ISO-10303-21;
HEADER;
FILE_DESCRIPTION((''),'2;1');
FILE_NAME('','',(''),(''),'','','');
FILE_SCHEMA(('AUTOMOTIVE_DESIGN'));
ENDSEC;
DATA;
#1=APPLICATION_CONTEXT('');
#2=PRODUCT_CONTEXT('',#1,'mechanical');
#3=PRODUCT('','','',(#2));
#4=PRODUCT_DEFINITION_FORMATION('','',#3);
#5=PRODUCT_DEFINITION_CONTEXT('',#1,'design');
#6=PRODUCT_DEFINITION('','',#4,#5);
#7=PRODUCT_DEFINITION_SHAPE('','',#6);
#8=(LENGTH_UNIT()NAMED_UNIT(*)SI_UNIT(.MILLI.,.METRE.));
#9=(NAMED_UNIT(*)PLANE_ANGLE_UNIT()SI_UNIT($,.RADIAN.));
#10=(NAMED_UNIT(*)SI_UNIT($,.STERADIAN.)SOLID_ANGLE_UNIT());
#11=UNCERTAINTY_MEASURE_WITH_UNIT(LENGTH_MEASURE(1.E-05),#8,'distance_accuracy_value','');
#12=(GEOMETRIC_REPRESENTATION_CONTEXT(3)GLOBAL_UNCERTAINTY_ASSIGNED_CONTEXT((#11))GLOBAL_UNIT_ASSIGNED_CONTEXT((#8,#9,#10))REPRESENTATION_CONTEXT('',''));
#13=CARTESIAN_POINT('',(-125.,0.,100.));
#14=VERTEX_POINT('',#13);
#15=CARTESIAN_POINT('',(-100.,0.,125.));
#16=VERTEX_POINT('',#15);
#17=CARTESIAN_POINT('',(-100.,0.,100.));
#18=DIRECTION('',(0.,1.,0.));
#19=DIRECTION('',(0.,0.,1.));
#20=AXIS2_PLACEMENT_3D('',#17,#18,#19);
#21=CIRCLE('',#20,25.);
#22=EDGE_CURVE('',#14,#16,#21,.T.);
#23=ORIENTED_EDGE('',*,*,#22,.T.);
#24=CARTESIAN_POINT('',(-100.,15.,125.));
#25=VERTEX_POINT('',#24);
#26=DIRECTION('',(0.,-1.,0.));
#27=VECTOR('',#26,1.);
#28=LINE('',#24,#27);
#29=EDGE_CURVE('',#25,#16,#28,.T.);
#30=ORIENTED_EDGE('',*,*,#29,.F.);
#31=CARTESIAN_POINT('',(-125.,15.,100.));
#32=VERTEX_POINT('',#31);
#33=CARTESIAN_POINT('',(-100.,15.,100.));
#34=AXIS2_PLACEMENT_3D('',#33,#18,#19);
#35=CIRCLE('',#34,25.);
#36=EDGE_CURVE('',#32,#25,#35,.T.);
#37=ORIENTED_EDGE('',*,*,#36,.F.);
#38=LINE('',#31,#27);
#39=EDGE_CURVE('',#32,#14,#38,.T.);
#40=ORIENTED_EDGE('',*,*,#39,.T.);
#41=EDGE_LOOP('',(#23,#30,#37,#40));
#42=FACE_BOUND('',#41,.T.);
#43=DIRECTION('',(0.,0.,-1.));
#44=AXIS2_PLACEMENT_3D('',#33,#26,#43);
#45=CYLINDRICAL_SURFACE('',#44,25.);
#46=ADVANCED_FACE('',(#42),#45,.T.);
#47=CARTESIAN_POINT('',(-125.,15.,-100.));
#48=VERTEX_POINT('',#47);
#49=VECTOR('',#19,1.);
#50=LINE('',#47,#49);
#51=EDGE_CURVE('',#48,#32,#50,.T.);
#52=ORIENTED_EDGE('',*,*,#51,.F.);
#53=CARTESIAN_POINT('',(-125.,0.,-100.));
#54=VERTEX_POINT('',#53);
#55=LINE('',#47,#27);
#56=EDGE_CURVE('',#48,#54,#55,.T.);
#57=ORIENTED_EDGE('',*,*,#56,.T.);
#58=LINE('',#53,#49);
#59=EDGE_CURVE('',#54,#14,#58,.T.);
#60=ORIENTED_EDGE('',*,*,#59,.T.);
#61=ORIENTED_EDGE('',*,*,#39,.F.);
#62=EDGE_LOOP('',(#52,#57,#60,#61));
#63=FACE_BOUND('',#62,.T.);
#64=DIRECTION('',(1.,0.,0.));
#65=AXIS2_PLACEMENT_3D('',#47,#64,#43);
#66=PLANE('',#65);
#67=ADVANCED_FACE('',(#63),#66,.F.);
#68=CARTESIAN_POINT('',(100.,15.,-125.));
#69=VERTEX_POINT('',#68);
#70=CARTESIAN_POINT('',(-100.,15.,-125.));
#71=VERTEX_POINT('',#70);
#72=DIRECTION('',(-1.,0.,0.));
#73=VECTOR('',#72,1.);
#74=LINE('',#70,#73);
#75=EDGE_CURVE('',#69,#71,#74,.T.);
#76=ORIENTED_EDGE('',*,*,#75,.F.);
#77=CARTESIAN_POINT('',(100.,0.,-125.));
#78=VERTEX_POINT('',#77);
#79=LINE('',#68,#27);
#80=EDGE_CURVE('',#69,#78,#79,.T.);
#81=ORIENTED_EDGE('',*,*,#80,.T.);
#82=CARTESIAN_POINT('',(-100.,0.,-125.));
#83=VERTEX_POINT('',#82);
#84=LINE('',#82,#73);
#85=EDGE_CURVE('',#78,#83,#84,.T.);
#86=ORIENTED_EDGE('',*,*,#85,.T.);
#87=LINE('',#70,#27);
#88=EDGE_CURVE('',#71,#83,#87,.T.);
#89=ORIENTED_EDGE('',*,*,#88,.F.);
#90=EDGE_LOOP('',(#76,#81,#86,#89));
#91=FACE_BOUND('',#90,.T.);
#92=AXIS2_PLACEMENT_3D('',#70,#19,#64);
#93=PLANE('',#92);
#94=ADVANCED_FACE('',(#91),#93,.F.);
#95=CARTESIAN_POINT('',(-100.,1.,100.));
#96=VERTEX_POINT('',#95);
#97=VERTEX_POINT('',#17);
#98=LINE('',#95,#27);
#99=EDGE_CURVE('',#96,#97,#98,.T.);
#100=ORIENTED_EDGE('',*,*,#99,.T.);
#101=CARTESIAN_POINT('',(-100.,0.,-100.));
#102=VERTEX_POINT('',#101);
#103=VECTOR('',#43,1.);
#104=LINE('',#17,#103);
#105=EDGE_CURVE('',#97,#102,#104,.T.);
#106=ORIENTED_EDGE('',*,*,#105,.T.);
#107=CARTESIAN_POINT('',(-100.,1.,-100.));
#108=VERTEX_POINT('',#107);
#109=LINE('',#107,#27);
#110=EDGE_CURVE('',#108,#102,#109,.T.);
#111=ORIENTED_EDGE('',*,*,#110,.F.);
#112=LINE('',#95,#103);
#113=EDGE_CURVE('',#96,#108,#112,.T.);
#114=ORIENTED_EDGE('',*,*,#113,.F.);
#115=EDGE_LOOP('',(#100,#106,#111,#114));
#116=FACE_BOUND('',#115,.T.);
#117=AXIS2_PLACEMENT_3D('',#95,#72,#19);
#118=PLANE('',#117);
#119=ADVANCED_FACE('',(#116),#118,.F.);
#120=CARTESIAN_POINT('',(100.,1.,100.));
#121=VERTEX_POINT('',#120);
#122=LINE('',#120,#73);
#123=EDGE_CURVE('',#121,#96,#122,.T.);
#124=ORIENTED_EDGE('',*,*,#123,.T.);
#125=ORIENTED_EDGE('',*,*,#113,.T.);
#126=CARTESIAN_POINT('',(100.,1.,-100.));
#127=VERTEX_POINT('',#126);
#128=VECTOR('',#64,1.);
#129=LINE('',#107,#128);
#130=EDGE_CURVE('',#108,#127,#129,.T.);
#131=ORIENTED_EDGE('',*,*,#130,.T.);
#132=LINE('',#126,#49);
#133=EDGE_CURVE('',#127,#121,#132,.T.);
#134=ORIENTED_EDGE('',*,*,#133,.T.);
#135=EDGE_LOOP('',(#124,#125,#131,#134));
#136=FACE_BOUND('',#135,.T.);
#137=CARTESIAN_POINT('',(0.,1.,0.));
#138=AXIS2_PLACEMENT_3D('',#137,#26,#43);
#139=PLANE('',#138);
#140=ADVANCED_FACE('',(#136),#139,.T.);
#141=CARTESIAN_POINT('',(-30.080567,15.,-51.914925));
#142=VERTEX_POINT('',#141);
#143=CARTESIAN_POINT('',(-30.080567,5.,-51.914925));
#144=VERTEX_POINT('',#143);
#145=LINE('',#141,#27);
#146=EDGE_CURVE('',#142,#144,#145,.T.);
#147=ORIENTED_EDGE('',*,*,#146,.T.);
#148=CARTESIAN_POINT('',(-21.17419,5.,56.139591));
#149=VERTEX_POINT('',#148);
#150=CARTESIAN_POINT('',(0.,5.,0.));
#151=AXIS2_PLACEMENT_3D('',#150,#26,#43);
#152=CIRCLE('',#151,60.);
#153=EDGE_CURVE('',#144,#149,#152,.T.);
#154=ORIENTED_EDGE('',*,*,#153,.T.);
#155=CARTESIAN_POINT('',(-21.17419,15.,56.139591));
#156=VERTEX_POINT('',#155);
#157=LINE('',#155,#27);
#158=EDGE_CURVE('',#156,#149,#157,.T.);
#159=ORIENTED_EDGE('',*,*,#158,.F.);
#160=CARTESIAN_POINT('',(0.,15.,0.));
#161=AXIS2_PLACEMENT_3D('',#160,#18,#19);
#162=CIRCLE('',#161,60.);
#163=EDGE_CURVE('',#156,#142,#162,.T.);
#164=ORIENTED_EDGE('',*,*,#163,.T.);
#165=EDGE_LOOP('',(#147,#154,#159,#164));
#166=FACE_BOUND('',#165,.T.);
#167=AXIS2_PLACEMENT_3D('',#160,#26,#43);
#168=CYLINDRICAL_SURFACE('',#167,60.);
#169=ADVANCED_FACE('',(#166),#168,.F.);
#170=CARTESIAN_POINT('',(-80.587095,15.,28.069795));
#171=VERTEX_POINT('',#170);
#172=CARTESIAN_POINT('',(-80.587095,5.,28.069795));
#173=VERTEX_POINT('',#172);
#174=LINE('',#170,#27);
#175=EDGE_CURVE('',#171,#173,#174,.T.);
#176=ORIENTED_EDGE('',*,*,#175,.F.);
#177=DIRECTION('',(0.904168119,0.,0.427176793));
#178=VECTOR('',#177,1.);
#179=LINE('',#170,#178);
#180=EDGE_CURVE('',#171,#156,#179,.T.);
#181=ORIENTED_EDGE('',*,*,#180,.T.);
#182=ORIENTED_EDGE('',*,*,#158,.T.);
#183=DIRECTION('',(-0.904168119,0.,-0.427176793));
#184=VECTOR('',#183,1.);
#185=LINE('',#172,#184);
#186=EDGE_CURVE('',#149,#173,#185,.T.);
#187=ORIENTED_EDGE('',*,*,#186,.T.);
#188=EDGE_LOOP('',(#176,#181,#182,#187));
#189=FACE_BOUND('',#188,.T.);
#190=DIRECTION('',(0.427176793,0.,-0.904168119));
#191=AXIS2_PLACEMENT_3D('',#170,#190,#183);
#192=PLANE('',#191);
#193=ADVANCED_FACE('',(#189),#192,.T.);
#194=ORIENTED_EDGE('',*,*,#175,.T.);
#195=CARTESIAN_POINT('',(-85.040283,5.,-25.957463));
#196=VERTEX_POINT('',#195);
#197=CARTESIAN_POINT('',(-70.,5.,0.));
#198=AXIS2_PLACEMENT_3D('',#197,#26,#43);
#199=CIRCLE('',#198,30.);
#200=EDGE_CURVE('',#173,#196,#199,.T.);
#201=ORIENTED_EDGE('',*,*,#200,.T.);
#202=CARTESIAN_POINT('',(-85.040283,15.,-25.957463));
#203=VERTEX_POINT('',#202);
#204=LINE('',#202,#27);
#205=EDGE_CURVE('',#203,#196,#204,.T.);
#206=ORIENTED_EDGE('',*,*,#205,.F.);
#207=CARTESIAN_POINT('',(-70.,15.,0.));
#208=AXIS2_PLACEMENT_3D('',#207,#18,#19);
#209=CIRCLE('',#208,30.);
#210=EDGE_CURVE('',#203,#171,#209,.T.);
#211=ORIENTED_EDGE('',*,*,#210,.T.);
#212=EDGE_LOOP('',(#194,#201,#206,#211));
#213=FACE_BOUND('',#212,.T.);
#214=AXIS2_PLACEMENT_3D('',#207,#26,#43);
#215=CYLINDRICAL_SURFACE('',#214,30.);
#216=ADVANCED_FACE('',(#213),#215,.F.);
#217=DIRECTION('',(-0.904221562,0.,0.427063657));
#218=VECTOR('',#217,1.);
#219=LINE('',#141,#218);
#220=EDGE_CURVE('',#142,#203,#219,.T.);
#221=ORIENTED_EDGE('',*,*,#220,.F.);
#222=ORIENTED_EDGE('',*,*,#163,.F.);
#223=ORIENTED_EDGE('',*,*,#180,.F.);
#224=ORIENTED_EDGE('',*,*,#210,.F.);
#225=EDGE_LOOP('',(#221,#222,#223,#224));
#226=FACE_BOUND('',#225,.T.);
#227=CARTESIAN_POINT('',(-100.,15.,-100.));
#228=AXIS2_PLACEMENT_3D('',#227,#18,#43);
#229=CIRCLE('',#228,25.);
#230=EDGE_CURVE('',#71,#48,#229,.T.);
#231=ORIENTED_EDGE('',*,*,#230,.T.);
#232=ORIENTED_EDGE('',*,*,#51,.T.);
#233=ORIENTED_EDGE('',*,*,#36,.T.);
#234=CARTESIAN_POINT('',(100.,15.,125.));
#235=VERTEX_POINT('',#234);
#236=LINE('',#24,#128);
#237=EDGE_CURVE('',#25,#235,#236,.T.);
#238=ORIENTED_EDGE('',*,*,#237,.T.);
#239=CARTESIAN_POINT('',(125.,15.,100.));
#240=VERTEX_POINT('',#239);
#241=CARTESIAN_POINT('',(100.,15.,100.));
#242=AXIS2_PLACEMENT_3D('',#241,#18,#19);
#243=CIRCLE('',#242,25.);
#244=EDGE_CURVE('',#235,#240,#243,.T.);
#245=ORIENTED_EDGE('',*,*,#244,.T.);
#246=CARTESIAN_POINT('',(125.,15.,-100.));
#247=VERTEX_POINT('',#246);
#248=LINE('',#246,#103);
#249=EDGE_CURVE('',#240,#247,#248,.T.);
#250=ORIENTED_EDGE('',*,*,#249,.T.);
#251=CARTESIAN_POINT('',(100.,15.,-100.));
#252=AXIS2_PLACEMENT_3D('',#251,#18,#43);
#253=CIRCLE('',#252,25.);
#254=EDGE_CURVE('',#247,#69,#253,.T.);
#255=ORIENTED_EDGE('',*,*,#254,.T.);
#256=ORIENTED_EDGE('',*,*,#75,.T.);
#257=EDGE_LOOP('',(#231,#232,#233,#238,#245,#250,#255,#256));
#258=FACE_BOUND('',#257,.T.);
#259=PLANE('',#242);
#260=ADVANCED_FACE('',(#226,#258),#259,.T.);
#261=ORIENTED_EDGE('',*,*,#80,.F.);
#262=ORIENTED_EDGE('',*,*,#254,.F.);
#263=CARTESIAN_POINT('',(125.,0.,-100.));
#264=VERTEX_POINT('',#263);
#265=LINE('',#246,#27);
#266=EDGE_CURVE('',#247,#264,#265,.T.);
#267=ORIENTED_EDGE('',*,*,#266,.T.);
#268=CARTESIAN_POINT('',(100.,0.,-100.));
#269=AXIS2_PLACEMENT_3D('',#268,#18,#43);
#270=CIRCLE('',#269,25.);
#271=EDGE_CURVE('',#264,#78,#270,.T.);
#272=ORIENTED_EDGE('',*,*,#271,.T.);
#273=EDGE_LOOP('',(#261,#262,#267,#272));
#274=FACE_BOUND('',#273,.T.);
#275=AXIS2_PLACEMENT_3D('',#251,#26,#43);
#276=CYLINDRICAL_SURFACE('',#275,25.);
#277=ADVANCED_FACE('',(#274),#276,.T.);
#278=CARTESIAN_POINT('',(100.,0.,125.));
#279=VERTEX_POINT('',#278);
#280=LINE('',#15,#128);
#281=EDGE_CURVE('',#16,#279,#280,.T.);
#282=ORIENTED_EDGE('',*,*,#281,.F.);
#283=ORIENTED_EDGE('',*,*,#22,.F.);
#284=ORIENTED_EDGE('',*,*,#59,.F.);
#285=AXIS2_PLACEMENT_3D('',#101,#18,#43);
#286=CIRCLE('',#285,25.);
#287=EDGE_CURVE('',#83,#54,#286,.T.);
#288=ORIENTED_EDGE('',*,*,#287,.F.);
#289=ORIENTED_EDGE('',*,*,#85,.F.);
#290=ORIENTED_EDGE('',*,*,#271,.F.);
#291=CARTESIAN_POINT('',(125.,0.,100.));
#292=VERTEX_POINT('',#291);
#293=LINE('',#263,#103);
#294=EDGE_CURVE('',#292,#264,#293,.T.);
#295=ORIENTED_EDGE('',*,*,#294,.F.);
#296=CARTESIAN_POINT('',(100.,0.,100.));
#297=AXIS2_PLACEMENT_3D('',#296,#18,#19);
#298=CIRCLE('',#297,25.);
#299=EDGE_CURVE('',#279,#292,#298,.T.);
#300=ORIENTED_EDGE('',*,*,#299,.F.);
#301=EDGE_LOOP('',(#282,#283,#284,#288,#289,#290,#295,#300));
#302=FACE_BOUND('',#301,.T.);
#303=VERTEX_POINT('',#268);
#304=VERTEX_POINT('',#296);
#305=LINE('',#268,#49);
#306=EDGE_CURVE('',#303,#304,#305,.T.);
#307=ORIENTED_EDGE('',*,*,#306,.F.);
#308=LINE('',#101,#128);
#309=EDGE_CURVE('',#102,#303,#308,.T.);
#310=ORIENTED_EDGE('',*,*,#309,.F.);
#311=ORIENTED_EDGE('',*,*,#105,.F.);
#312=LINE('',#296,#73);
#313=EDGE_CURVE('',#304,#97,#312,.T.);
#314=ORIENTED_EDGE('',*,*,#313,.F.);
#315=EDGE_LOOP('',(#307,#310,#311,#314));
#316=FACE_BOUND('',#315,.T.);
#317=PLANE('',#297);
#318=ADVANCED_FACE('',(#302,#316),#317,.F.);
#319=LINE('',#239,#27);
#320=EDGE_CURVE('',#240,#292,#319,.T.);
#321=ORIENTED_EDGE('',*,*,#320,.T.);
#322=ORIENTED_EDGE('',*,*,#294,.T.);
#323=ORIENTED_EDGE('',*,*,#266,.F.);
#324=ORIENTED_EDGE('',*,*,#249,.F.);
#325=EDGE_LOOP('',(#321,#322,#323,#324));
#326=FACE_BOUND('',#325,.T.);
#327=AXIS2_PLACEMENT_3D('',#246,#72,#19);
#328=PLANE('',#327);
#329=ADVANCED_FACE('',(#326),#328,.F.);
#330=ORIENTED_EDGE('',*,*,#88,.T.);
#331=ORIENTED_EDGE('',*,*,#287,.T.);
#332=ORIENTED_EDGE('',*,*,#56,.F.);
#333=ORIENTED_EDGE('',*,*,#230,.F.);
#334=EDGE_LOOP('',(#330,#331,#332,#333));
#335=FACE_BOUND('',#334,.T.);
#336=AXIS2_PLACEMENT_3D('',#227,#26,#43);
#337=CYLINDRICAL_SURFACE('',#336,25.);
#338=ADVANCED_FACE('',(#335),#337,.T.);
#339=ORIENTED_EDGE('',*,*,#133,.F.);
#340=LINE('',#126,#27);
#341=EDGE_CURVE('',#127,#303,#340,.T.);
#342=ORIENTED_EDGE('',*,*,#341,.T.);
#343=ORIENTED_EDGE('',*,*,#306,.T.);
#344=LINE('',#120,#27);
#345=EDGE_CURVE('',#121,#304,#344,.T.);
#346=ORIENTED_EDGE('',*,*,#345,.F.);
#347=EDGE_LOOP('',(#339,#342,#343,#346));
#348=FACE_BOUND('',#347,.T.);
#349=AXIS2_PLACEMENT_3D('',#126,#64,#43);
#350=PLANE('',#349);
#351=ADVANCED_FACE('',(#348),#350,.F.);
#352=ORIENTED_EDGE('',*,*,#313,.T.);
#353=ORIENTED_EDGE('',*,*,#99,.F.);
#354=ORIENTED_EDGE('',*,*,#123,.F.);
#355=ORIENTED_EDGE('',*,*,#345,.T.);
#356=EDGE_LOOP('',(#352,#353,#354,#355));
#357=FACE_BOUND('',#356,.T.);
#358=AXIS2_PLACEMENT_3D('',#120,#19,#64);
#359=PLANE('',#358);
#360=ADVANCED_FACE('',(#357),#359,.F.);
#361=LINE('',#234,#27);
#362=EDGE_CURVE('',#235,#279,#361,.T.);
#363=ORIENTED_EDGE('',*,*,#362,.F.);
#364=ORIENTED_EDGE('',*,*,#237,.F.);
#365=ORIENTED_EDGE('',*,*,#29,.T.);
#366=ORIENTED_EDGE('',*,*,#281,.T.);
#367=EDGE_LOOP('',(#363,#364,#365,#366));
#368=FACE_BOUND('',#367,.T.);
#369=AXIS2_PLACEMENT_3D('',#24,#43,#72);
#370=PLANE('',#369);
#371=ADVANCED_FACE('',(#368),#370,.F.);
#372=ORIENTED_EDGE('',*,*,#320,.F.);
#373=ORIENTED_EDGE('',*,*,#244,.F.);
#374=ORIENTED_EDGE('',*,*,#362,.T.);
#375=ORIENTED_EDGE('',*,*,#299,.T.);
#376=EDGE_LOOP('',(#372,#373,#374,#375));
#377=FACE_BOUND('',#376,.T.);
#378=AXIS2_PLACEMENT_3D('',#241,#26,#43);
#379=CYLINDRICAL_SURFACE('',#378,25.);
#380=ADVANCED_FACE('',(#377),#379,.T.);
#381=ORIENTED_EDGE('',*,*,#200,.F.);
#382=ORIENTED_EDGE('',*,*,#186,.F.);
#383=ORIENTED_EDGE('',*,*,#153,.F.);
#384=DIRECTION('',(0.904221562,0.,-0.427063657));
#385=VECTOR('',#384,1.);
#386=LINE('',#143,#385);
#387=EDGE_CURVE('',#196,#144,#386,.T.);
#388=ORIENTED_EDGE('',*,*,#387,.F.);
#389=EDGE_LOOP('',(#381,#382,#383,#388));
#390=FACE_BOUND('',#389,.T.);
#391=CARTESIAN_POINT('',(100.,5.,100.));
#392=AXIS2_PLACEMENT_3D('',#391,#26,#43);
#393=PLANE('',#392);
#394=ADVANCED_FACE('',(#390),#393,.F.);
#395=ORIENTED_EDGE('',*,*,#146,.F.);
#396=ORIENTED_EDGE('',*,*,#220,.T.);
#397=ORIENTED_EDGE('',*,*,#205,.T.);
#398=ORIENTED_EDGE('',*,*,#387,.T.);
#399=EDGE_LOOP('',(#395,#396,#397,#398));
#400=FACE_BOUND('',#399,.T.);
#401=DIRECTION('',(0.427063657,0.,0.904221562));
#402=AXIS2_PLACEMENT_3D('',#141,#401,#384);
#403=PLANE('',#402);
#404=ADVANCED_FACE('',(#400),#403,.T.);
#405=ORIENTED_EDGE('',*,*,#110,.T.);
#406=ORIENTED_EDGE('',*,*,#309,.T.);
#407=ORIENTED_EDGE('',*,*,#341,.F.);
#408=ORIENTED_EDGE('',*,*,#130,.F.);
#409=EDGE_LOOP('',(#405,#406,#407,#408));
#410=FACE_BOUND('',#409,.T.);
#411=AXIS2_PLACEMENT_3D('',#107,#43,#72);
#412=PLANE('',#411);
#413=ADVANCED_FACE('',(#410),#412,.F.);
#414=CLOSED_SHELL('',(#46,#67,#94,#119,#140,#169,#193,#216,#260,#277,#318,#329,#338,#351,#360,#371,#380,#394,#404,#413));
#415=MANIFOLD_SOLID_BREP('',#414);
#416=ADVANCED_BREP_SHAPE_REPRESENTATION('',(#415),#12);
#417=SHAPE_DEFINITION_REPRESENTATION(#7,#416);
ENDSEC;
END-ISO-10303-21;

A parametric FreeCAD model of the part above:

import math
import FreeCAD as App
import Part
import Sketcher
from FreeCAD import Vector

doc = App.newDocument("Part")
body = doc.addObject("PartDesign::Body", "Body")

# Sketch on XZ plane
sketch1 = body.newObject("Sketcher::SketchObject", "Sketch")
sketch1.AttachmentSupport = (doc.getObject("XZ_Plane"), [""])
sketch1.MapMode = "FlatFace"
sketch1.addGeometry([
    Part.LineSegment(Vector(100, -125, 0), Vector(-100, -125, 0)),  # 0
    Part.ArcOfCircle(Part.Circle(Vector(-100, -100, 0), Vector(0, 0, 1), 25), math.radians(180), math.radians(270)),  # 1
    Part.LineSegment(Vector(-125, -100, 0), Vector(-125, 100, 0)),  # 2
    Part.ArcOfCircle(Part.Circle(Vector(-100, 100, 0), Vector(0, 0, 1), 25), math.radians(90), math.radians(180)),  # 3
    Part.LineSegment(Vector(-100, 125, 0), Vector(100, 125, 0)),  # 4
    Part.ArcOfCircle(Part.Circle(Vector(100, 100, 0), Vector(0, 0, 1), 25), math.radians(0), math.radians(90)),  # 5
    Part.LineSegment(Vector(125, 100, 0), Vector(125, -100, 0)),  # 6
    Part.ArcOfCircle(Part.Circle(Vector(100, -100, 0), Vector(0, 0, 1), 25), math.radians(-90), math.radians(0)),  # 7
    Part.ArcOfCircle(Part.Circle(Vector(0, 0, 0), Vector(0, 0, 1), 60), math.radians(-120), math.radians(111)),  # 8
    Part.LineSegment(Vector(-21, 56, 0), Vector(-81, 28, 0)),  # 9
    Part.ArcOfCircle(Part.Circle(Vector(-70, 0, 0), Vector(0, 0, 1), 30), math.radians(111), math.radians(240)),  # 10
    Part.LineSegment(Vector(-85, -26, 0), Vector(-30, -52, 0)),  # 11
], False)
sketch1.addConstraint([
    Sketcher.Constraint("Tangent", 0, 2, 1, 2),
    Sketcher.Constraint("Tangent", 1, 1, 2, 1),
    Sketcher.Constraint("Tangent", 2, 2, 3, 2),
    Sketcher.Constraint("Tangent", 3, 1, 4, 1),
    Sketcher.Constraint("Tangent", 4, 2, 5, 2),
    Sketcher.Constraint("Tangent", 5, 1, 6, 1),
    Sketcher.Constraint("Tangent", 6, 2, 7, 2),
    Sketcher.Constraint("Tangent", 7, 1, 0, 1),
    Sketcher.Constraint("Coincident", 8, 2, 9, 1),
    Sketcher.Constraint("Coincident", 9, 2, 10, 1),
    Sketcher.Constraint("Coincident", 10, 2, 11, 1),
    Sketcher.Constraint("Coincident", 11, 2, 8, 1),
    Sketcher.Constraint("Horizontal", 0),
    Sketcher.Constraint("Vertical", 2),
    Sketcher.Constraint("Horizontal", 4),
    Sketcher.Constraint("Vertical", 6),
    Sketcher.Constraint("Coincident", 8, 3, -1, 1),
    Sketcher.Constraint("Equal", 1, 3),
    Sketcher.Constraint("Equal", 3, 5),
    Sketcher.Constraint("Equal", 5, 7),
    Sketcher.Constraint("Symmetric", 1, 3, 5, 3, -1, 1),
    Sketcher.Constraint("PointOnObject", 10, 3, -1),
    Sketcher.Constraint("Equal", 4, 2),
    Sketcher.Constraint("Radius", 1, 25.0),
    Sketcher.Constraint("Radius", 8, 60.0),
    Sketcher.Constraint("Radius", 10, 30.0),
    Sketcher.Constraint("DistanceX", 0, 2, 0, 1, 200.0),
    Sketcher.Constraint("DistanceX", 10, 3, -1, 1, 70.0),
    Sketcher.Constraint("Distance", 9, 65.71002),
    Sketcher.Constraint("Distance", 11, 60.78125),
    Sketcher.Constraint("DistanceX", 8, 2, -1, 1, 21.17419),
    Sketcher.Constraint("DistanceX", 10, 2, 9, 2, 4.453188),
])
pad1 = body.newObject("PartDesign::Pad", "Pad")
pad1.Profile = sketch1
pad1.Length = 15
pad1.Reversed = True

# Sketch on XZ plane
sketch2 = body.newObject("Sketcher::SketchObject", "Sketch001")
sketch2.AttachmentSupport = (doc.getObject("XZ_Plane"), [""])
sketch2.MapMode = "FlatFace"
sketch2.addGeometry([
    Part.LineSegment(Vector(100, 125, 0), Vector(-100, 125, 0)),  # 0
    Part.ArcOfCircle(Part.Circle(Vector(-100, 100, 0), Vector(0, 0, 1), 25), math.radians(90), math.radians(180)),  # 1
    Part.LineSegment(Vector(-125, 100, 0), Vector(-125, -100, 0)),  # 2
    Part.ArcOfCircle(Part.Circle(Vector(-100, -100, 0), Vector(0, 0, 1), 25), math.radians(180), math.radians(270)),  # 3
    Part.LineSegment(Vector(-100, -125, 0), Vector(100, -125, 0)),  # 4
    Part.ArcOfCircle(Part.Circle(Vector(100, -100, 0), Vector(0, 0, 1), 25), math.radians(-90), math.radians(0)),  # 5
    Part.LineSegment(Vector(125, -100, 0), Vector(125, 100, 0)),  # 6
    Part.ArcOfCircle(Part.Circle(Vector(100, 100, 0), Vector(0, 0, 1), 25), math.radians(0), math.radians(90)),  # 7
], False)
sketch2.addConstraint([
    Sketcher.Constraint("Tangent", 0, 2, 1, 1),
    Sketcher.Constraint("Tangent", 1, 2, 2, 1),
    Sketcher.Constraint("Tangent", 2, 2, 3, 1),
    Sketcher.Constraint("Tangent", 3, 2, 4, 1),
    Sketcher.Constraint("Tangent", 4, 2, 5, 1),
    Sketcher.Constraint("Tangent", 5, 2, 6, 1),
    Sketcher.Constraint("Tangent", 6, 2, 7, 1),
    Sketcher.Constraint("Tangent", 7, 2, 0, 1),
    Sketcher.Constraint("Horizontal", 0),
    Sketcher.Constraint("Vertical", 2),
    Sketcher.Constraint("Horizontal", 4),
    Sketcher.Constraint("Vertical", 6),
    Sketcher.Constraint("Equal", 1, 3),
    Sketcher.Constraint("Equal", 3, 5),
    Sketcher.Constraint("Equal", 5, 7),
    Sketcher.Constraint("Symmetric", 1, 3, 5, 3, -1, 1),
    Sketcher.Constraint("Equal", 4, 2),
    Sketcher.Constraint("Radius", 1, 25.0),
    Sketcher.Constraint("DistanceX", 0, 2, 0, 1, 200.0),
])
pad2 = body.newObject("PartDesign::Pad", "Pad001")
pad2.Profile = sketch2
pad2.Length = 5
pad2.Reversed = True

# Sketch on XZ plane
sketch3 = body.newObject("Sketcher::SketchObject", "Sketch002")
sketch3.AttachmentSupport = (doc.getObject("XZ_Plane"), [""])
sketch3.MapMode = "FlatFace"
sketch3.addGeometry([
    Part.LineSegment(Vector(-100, 100, 0), Vector(-100, -100, 0)),
    Part.LineSegment(Vector(-100, -100, 0), Vector(100, -100, 0)),
    Part.LineSegment(Vector(100, -100, 0), Vector(100, 100, 0)),
    Part.LineSegment(Vector(100, 100, 0), Vector(-100, 100, 0)),
], False)
sketch3.addConstraint([
    Sketcher.Constraint("Coincident", 0, 2, 1, 1),
    Sketcher.Constraint("Coincident", 1, 2, 2, 1),
    Sketcher.Constraint("Coincident", 2, 2, 3, 1),
    Sketcher.Constraint("Coincident", 3, 2, 0, 1),
    Sketcher.Constraint("Vertical", 0),
    Sketcher.Constraint("Horizontal", 1),
    Sketcher.Constraint("Vertical", 2),
    Sketcher.Constraint("Horizontal", 3),
    Sketcher.Constraint("Symmetric", 0, 2, 2, 2, -1, 1),
    Sketcher.Constraint("Equal", 3, 0),
    Sketcher.Constraint("DistanceX", 1, 1, 1, 2, 200.0),
])
pocket1 = body.newObject("PartDesign::Pocket", "Pocket")
pocket1.Profile = sketch3
pocket1.Length = 1

doc.recompute()
